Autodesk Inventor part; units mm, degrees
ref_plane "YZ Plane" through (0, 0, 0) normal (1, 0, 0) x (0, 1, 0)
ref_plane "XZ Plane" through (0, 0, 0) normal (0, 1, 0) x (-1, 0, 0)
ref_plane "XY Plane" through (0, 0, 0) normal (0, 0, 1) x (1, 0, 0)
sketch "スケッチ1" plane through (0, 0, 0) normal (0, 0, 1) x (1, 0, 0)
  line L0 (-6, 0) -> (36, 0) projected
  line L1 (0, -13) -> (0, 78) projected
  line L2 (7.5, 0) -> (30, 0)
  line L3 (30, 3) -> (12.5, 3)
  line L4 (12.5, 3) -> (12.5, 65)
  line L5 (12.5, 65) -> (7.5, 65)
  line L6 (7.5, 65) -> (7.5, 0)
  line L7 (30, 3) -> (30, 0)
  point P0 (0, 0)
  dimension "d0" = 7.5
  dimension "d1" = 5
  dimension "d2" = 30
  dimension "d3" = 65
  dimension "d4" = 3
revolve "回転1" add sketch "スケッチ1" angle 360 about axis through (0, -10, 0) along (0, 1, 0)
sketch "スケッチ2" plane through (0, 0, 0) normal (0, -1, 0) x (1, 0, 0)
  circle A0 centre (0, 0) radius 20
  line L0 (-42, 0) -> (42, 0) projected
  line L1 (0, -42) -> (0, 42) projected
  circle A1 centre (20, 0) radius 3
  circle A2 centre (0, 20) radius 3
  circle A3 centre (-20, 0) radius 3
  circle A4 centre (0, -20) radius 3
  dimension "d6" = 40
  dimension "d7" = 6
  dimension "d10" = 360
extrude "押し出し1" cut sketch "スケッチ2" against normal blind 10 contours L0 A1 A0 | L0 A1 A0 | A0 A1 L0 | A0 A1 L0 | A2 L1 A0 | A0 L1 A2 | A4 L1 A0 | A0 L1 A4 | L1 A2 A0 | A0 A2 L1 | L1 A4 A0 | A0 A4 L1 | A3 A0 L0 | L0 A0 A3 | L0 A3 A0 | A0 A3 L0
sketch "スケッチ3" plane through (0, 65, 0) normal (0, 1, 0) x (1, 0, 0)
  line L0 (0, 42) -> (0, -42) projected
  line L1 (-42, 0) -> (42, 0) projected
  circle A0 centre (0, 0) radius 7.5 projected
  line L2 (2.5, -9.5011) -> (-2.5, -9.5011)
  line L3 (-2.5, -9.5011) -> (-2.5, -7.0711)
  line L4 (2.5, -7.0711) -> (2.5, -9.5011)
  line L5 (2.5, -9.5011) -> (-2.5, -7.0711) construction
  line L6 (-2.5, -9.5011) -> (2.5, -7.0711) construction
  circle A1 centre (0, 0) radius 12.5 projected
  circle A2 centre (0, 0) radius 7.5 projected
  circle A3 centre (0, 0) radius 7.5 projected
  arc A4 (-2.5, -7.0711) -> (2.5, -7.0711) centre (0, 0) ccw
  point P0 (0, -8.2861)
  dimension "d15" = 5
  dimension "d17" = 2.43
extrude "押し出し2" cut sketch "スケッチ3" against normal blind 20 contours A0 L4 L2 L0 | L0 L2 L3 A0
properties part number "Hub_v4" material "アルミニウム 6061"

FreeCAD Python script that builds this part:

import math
import FreeCAD as App
import Part
import Sketcher
Q = App.Units.Quantity


def add_polygon(sketch, points):
    """Adds a closed chain of lines whose ends are joined by coincident constraints."""
    first, n = sketch.GeometryCount, len(points)
    for a, b in zip(points, points[1:] + points[:1]):
        sketch.addGeometry(Part.LineSegment(App.Vector(*a, 0), App.Vector(*b, 0)), False)
    for i in range(n):
        sketch.addConstraint(Sketcher.Constraint("Coincident", first + i, 2, first + (i + 1) % n, 1))

doc = App.newDocument("Part")
params = doc.addObject("Spreadsheet::Sheet", "Params")
for row, (alias, value) in enumerate([
    ("sketch1_width", "5 mm"),
    ("sketch1_height", "65 mm"),
    ("sketch1_height2", "3 mm"),
    ("revolution_angle", "360 deg"),
    ("sketch2_diameter", "6 mm"),
    ("pocket1_length", "10 mm"),
    ("sketch3_width", "5 mm"),
    ("sketch3_height", "2.43 mm"),
    ("sketch3_radius", "7.5 mm"),
    ("pocket2_length", "20 mm"),
], start=1):
    params.set(f"A{row}", alias)
    params.set(f"B{row}", "=" + value)
    params.setAlias(f"B{row}", alias)

body = doc.addObject("PartDesign::Body", "Body")

# Sketch on XY plane
sketch1 = body.newObject("Sketcher::SketchObject", "Sketch")
sketch1.AttachmentSupport = (doc.getObject("XY_Plane"), [""])
sketch1.MapMode = "FlatFace"
add_polygon(sketch1, [(7.5, 65), (7.5, 0), (30, 0), (30, 3), (12.5, 3), (12.5, 65)])  # lines 0-5
sketch1.addConstraint(Sketcher.Constraint("Vertical", 0))
sketch1.addConstraint(Sketcher.Constraint("Horizontal", 1))
sketch1.addConstraint(Sketcher.Constraint("Vertical", 2))
sketch1.addConstraint(Sketcher.Constraint("Horizontal", 3))
sketch1.addConstraint(Sketcher.Constraint("Vertical", 4))
sketch1.addConstraint(Sketcher.Constraint("Horizontal", 5))
sketch1.addConstraint(Sketcher.Constraint("PointOnObject", 0, 2, -1))
sketch1.addConstraint(Sketcher.Constraint("DistanceX", 5, 2, 5, 1, Q("5 mm")))
sketch1.addConstraint(Sketcher.Constraint("DistanceY", 0, 2, 0, 1, Q("65 mm")))
sketch1.addConstraint(Sketcher.Constraint("DistanceY", 2, 1, 2, 2, Q("3 mm")))
sketch1.addConstraint(Sketcher.Constraint("DistanceX", -1, 1, 1, 2, Q("30 mm")))
sketch1.addConstraint(Sketcher.Constraint("DistanceX", -1, 1, 0, 2, Q("7.5 mm")))
sketch1.setExpression("Constraints[13]", "Params.sketch1_width")
sketch1.setExpression("Constraints[14]", "Params.sketch1_height")
sketch1.setExpression("Constraints[15]", "Params.sketch1_height2")
revolution = body.newObject("PartDesign::Revolution", "Revolution")
revolution.Profile = sketch1
revolution.ReferenceAxis = (sketch1, ["V_Axis"])
revolution.setExpression("Angle", "Params.revolution_angle")

# Sketch on XZ plane
sketch2 = body.newObject("Sketcher::SketchObject", "Sketch001")
sketch2.AttachmentSupport = (doc.getObject("XZ_Plane"), [""])
sketch2.MapMode = "FlatFace"
sketch2.addGeometry(Part.Circle(App.Vector(20, 0, 0), App.Vector(0, 0, 1), 3), False)
sketch2.addGeometry(Part.Circle(App.Vector(0, 20, 0), App.Vector(0, 0, 1), 3), False)
sketch2.addGeometry(Part.Circle(App.Vector(0, -20, 0), App.Vector(0, 0, 1), 3), False)
sketch2.addGeometry(Part.Circle(App.Vector(-20, 0, 0), App.Vector(0, 0, 1), 3), False)
sketch2.addConstraint(Sketcher.Constraint("Equal", 0, 1))
sketch2.addConstraint(Sketcher.Constraint("Equal", 1, 2))
sketch2.addConstraint(Sketcher.Constraint("Equal", 2, 3))
sketch2.addConstraint(Sketcher.Constraint("Symmetric", 1, 3, 2, 3, -1, 1))
sketch2.addConstraint(Sketcher.Constraint("Symmetric", 0, 3, 3, 3, -1, 1))
sketch2.addConstraint(Sketcher.Constraint("PointOnObject", 0, 3, -1))
sketch2.addConstraint(Sketcher.Constraint("PointOnObject", 1, 3, -2))
sketch2.addConstraint(Sketcher.Constraint("Diameter", 0, Q("6 mm")))
sketch2.addConstraint(Sketcher.Constraint("DistanceY", 2, 3, 1, 3, Q("40 mm")))
sketch2.addConstraint(Sketcher.Constraint("DistanceX", 3, 3, 0, 3, Q("40 mm")))
sketch2.setExpression("Constraints[7]", "Params.sketch2_diameter")
pocket1 = body.newObject("PartDesign::Pocket", "Pocket")
pocket1.Profile = sketch2
pocket1.setExpression("Length", "Params.pocket1_length")

# Sketch on XZ plane
sketch3 = body.newObject("Sketcher::SketchObject", "Sketch002")
sketch3.AttachmentSupport = (doc.getObject("XZ_Plane"), [""])
sketch3.MapMode = "FlatFace"
sketch3.AttachmentOffset = App.Placement(App.Vector(0, 0, -65), App.Rotation())
sketch3.addGeometry(Part.ArcOfCircle(Part.Circle(App.Vector(0, 0, 0), App.Vector(0, 0, 1), 7.5), math.radians(70.528861), math.radians(109.471139)), False)
sketch3.addGeometry(Part.LineSegment(App.Vector(-2.5, 7.0711, 0), App.Vector(-2.5, 9.5011, 0)), False)
sketch3.addGeometry(Part.LineSegment(App.Vector(-2.5, 9.5011, 0), App.Vector(2.5, 9.5011, 0)), False)
sketch3.addGeometry(Part.LineSegment(App.Vector(2.5, 9.5011, 0), App.Vector(2.5, 7.0711, 0)), False)
sketch3.addConstraint(Sketcher.Constraint("Coincident", 0, 2, 1, 1))
sketch3.addConstraint(Sketcher.Constraint("Coincident", 1, 2, 2, 1))
sketch3.addConstraint(Sketcher.Constraint("Coincident", 2, 2, 3, 1))
sketch3.addConstraint(Sketcher.Constraint("Coincident", 3, 2, 0, 1))
sketch3.addConstraint(Sketcher.Constraint("Vertical", 1))
sketch3.addConstraint(Sketcher.Constraint("Horizontal", 2))
sketch3.addConstraint(Sketcher.Constraint("Vertical", 3))
sketch3.addConstraint(Sketcher.Constraint("Coincident", 0, 3, -1, 1))
sketch3.addConstraint(Sketcher.Constraint("Horizontal", 0, 2, 3, 2))
sketch3.addConstraint(Sketcher.Constraint("DistanceX", 2, 1, 2, 2, Q("5 mm")))
sketch3.addConstraint(Sketcher.Constraint("DistanceY", 1, 1, 1, 2, Q("2.43 mm")))
sketch3.addConstraint(Sketcher.Constraint("Radius", 0, Q("7.5 mm")))
sketch3.setExpression("Constraints[9]", "Params.sketch3_width")
sketch3.setExpression("Constraints[10]", "Params.sketch3_height")
sketch3.setExpression("Constraints[11]", "Params.sketch3_radius")
pocket2 = body.newObject("PartDesign::Pocket", "Pocket001")
pocket2.Profile = sketch3
pocket2.setExpression("Length", "Params.pocket2_length")
pocket2.Reversed = True

doc.recompute()
